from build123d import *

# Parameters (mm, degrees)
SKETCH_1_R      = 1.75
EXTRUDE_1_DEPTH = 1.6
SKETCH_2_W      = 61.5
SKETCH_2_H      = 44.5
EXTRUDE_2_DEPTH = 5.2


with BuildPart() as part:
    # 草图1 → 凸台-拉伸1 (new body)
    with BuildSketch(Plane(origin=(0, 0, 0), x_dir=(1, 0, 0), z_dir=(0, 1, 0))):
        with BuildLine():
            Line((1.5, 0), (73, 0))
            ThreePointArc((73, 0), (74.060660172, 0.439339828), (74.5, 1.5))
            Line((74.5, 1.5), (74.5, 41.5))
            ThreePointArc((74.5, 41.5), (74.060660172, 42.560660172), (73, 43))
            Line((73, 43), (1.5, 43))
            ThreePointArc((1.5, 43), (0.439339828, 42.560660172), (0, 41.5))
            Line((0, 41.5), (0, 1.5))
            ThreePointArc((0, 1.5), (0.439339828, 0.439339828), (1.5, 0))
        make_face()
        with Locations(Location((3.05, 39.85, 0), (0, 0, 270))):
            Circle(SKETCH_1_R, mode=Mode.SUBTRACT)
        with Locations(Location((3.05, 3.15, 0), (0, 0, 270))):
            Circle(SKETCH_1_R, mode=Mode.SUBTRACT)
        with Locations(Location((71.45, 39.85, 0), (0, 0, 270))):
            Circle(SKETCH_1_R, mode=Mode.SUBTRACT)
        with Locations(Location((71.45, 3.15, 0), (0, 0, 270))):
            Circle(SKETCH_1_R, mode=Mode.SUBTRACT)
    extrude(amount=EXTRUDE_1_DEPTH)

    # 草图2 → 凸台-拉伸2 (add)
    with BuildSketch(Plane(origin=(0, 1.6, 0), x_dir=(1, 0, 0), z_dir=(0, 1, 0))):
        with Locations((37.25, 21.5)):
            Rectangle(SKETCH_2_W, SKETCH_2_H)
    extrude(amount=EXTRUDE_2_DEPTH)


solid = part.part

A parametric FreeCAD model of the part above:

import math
import FreeCAD as App
import Part
import Sketcher

V = App.Vector


def add_polygon(sketch, points):
    """Adds a closed chain of lines whose ends are joined by coincident constraints."""
    first, n = sketch.GeometryCount, len(points)
    for a, b in zip(points, points[1:] + points[:1]):
        sketch.addGeometry(Part.LineSegment(App.Vector(*a, 0), App.Vector(*b, 0)), False)
    for i in range(n):
        sketch.addConstraint(Sketcher.Constraint("Coincident", first + i, 2, first + (i + 1) % n, 1))

doc = App.newDocument("Part")
body = doc.addObject("PartDesign::Body", "Body")

# Sketch on XZ plane
sketch1 = body.newObject("Sketcher::SketchObject", "Sketch")
sketch1.AttachmentSupport = (doc.getObject("XZ_Plane"), [""])
sketch1.MapMode = "FlatFace"
sketch1.addGeometry(Part.LineSegment(V(1.5, 0, 0), V(73, 0, 0)), False)
sketch1.addGeometry(Part.ArcOfCircle(Part.Circle(V(73, -1.5, 0), V(0, 0, 1), 1.5), math.radians(0), math.radians(90)), False)
sketch1.addGeometry(Part.LineSegment(V(74.5, -1.5, 0), V(74.5, -41.5, 0)), False)
sketch1.addGeometry(Part.ArcOfCircle(Part.Circle(V(73, -41.5, 0), V(0, 0, 1), 1.5), math.radians(-90), math.radians(0)), False)
sketch1.addGeometry(Part.LineSegment(V(73, -43, 0), V(1.5, -43, 0)), False)
sketch1.addGeometry(Part.ArcOfCircle(Part.Circle(V(1.5, -41.5, 0), V(0, 0, 1), 1.5), math.radians(180), math.radians(270)), False)
sketch1.addGeometry(Part.LineSegment(V(0, -41.5, 0), V(0, -1.5, 0)), False)
sketch1.addGeometry(Part.ArcOfCircle(Part.Circle(V(1.5, -1.5, 0), V(0, 0, 1), 1.5), math.radians(90), math.radians(180)), False)
sketch1.addGeometry(Part.Circle(V(3, -3.1, 0), V(0, 0, 1), 1.8), False)
sketch1.addGeometry(Part.Circle(V(71.5, -3.1, 0), V(0, 0, 1), 1.8), False)
sketch1.addGeometry(Part.Circle(V(3, -39.9, 0), V(0, 0, 1), 1.8), False)
sketch1.addGeometry(Part.Circle(V(71.5, -39.9, 0), V(0, 0, 1), 1.8), False)
sketch1.addConstraint(Sketcher.Constraint("Tangent", 0, 2, 1, 2))
sketch1.addConstraint(Sketcher.Constraint("Tangent", 1, 1, 2, 1))
sketch1.addConstraint(Sketcher.Constraint("Tangent", 2, 2, 3, 2))
sketch1.addConstraint(Sketcher.Constraint("Tangent", 3, 1, 4, 1))
sketch1.addConstraint(Sketcher.Constraint("Tangent", 4, 2, 5, 2))
sketch1.addConstraint(Sketcher.Constraint("Tangent", 5, 1, 6, 1))
sketch1.addConstraint(Sketcher.Constraint("Tangent", 6, 2, 7, 2))
sketch1.addConstraint(Sketcher.Constraint("Tangent", 7, 1, 0, 1))
sketch1.addConstraint(Sketcher.Constraint("Horizontal", 0))
sketch1.addConstraint(Sketcher.Constraint("Vertical", 2))
sketch1.addConstraint(Sketcher.Constraint("Horizontal", 4))
sketch1.addConstraint(Sketcher.Constraint("Vertical", 6))
sketch1.addConstraint(Sketcher.Constraint("Equal", 1, 3))
sketch1.addConstraint(Sketcher.Constraint("Equal", 3, 5))
sketch1.addConstraint(Sketcher.Constraint("Equal", 5, 7))
sketch1.addConstraint(Sketcher.Constraint("Equal", 8, 9))
sketch1.addConstraint(Sketcher.Constraint("Equal", 9, 10))
sketch1.addConstraint(Sketcher.Constraint("Equal", 10, 11))
sketch1.addConstraint(Sketcher.Constraint("PointOnObject", 0, 2, -1))
sketch1.addConstraint(Sketcher.Constraint("PointOnObject", 5, 1, -2))
sketch1.addConstraint(Sketcher.Constraint("Horizontal", 8, 3, 9, 3))
sketch1.addConstraint(Sketcher.Constraint("Horizontal", 10, 3, 11, 3))
sketch1.addConstraint(Sketcher.Constraint("Vertical", 8, 3, 10, 3))
sketch1.addConstraint(Sketcher.Constraint("Vertical", 9, 3, 11, 3))
sketch1.addConstraint(Sketcher.Constraint("Diameter", 8, 3.5))
sketch1.addConstraint(Sketcher.Constraint("Radius", 1, 1.5))
sketch1.addConstraint(Sketcher.Constraint("DistanceY", 2, 2, 2, 1, 40.0))
sketch1.addConstraint(Sketcher.Constraint("DistanceX", 0, 1, 0, 2, 71.5))
sketch1.addConstraint(Sketcher.Constraint("DistanceX", 8, 3, 9, 3, 68.4))
sketch1.addConstraint(Sketcher.Constraint("DistanceY", 10, 3, 8, 3, 36.7))
sketch1.addConstraint(Sketcher.Constraint("DistanceX", -1, 1, 8, 3, 3.05))
sketch1.addConstraint(Sketcher.Constraint("DistanceY", 8, 3, -1, 1, 3.15))
pad1 = body.newObject("PartDesign::Pad", "Pad")
pad1.Profile = sketch1
pad1.Length = 1.6
pad1.Reversed = True

# Sketch on XZ plane
sketch2 = body.newObject("Sketcher::SketchObject", "Sketch001")
sketch2.AttachmentSupport = (doc.getObject("XZ_Plane"), [""])
sketch2.MapMode = "FlatFace"
sketch2.AttachmentOffset = App.Placement(V(0, 0, -1.6), App.Rotation())
add_polygon(sketch2, [(6, -44), (6, 1), (68, 1), (68, -44)])  # lines 0-3
sketch2.addConstraint(Sketcher.Constraint("Vertical", 0))
sketch2.addConstraint(Sketcher.Constraint("Horizontal", 1))
sketch2.addConstraint(Sketcher.Constraint("Vertical", 2))
sketch2.addConstraint(Sketcher.Constraint("Horizontal", 3))
sketch2.addConstraint(Sketcher.Constraint("DistanceX", 1, 1, 1, 2, 61.5))
sketch2.addConstraint(Sketcher.Constraint("DistanceY", 0, 1, 0, 2, 44.5))
sketch2.addConstraint(Sketcher.Constraint("DistanceX", -1, 1, 1, 2, 68.0))
sketch2.addConstraint(Sketcher.Constraint("DistanceY", -1, 1, 0, 2, 0.75))
pad2 = body.newObject("PartDesign::Pad", "Pad001")
pad2.Profile = sketch2
pad2.Length = 5.2
pad2.Reversed = True

doc.recompute()
